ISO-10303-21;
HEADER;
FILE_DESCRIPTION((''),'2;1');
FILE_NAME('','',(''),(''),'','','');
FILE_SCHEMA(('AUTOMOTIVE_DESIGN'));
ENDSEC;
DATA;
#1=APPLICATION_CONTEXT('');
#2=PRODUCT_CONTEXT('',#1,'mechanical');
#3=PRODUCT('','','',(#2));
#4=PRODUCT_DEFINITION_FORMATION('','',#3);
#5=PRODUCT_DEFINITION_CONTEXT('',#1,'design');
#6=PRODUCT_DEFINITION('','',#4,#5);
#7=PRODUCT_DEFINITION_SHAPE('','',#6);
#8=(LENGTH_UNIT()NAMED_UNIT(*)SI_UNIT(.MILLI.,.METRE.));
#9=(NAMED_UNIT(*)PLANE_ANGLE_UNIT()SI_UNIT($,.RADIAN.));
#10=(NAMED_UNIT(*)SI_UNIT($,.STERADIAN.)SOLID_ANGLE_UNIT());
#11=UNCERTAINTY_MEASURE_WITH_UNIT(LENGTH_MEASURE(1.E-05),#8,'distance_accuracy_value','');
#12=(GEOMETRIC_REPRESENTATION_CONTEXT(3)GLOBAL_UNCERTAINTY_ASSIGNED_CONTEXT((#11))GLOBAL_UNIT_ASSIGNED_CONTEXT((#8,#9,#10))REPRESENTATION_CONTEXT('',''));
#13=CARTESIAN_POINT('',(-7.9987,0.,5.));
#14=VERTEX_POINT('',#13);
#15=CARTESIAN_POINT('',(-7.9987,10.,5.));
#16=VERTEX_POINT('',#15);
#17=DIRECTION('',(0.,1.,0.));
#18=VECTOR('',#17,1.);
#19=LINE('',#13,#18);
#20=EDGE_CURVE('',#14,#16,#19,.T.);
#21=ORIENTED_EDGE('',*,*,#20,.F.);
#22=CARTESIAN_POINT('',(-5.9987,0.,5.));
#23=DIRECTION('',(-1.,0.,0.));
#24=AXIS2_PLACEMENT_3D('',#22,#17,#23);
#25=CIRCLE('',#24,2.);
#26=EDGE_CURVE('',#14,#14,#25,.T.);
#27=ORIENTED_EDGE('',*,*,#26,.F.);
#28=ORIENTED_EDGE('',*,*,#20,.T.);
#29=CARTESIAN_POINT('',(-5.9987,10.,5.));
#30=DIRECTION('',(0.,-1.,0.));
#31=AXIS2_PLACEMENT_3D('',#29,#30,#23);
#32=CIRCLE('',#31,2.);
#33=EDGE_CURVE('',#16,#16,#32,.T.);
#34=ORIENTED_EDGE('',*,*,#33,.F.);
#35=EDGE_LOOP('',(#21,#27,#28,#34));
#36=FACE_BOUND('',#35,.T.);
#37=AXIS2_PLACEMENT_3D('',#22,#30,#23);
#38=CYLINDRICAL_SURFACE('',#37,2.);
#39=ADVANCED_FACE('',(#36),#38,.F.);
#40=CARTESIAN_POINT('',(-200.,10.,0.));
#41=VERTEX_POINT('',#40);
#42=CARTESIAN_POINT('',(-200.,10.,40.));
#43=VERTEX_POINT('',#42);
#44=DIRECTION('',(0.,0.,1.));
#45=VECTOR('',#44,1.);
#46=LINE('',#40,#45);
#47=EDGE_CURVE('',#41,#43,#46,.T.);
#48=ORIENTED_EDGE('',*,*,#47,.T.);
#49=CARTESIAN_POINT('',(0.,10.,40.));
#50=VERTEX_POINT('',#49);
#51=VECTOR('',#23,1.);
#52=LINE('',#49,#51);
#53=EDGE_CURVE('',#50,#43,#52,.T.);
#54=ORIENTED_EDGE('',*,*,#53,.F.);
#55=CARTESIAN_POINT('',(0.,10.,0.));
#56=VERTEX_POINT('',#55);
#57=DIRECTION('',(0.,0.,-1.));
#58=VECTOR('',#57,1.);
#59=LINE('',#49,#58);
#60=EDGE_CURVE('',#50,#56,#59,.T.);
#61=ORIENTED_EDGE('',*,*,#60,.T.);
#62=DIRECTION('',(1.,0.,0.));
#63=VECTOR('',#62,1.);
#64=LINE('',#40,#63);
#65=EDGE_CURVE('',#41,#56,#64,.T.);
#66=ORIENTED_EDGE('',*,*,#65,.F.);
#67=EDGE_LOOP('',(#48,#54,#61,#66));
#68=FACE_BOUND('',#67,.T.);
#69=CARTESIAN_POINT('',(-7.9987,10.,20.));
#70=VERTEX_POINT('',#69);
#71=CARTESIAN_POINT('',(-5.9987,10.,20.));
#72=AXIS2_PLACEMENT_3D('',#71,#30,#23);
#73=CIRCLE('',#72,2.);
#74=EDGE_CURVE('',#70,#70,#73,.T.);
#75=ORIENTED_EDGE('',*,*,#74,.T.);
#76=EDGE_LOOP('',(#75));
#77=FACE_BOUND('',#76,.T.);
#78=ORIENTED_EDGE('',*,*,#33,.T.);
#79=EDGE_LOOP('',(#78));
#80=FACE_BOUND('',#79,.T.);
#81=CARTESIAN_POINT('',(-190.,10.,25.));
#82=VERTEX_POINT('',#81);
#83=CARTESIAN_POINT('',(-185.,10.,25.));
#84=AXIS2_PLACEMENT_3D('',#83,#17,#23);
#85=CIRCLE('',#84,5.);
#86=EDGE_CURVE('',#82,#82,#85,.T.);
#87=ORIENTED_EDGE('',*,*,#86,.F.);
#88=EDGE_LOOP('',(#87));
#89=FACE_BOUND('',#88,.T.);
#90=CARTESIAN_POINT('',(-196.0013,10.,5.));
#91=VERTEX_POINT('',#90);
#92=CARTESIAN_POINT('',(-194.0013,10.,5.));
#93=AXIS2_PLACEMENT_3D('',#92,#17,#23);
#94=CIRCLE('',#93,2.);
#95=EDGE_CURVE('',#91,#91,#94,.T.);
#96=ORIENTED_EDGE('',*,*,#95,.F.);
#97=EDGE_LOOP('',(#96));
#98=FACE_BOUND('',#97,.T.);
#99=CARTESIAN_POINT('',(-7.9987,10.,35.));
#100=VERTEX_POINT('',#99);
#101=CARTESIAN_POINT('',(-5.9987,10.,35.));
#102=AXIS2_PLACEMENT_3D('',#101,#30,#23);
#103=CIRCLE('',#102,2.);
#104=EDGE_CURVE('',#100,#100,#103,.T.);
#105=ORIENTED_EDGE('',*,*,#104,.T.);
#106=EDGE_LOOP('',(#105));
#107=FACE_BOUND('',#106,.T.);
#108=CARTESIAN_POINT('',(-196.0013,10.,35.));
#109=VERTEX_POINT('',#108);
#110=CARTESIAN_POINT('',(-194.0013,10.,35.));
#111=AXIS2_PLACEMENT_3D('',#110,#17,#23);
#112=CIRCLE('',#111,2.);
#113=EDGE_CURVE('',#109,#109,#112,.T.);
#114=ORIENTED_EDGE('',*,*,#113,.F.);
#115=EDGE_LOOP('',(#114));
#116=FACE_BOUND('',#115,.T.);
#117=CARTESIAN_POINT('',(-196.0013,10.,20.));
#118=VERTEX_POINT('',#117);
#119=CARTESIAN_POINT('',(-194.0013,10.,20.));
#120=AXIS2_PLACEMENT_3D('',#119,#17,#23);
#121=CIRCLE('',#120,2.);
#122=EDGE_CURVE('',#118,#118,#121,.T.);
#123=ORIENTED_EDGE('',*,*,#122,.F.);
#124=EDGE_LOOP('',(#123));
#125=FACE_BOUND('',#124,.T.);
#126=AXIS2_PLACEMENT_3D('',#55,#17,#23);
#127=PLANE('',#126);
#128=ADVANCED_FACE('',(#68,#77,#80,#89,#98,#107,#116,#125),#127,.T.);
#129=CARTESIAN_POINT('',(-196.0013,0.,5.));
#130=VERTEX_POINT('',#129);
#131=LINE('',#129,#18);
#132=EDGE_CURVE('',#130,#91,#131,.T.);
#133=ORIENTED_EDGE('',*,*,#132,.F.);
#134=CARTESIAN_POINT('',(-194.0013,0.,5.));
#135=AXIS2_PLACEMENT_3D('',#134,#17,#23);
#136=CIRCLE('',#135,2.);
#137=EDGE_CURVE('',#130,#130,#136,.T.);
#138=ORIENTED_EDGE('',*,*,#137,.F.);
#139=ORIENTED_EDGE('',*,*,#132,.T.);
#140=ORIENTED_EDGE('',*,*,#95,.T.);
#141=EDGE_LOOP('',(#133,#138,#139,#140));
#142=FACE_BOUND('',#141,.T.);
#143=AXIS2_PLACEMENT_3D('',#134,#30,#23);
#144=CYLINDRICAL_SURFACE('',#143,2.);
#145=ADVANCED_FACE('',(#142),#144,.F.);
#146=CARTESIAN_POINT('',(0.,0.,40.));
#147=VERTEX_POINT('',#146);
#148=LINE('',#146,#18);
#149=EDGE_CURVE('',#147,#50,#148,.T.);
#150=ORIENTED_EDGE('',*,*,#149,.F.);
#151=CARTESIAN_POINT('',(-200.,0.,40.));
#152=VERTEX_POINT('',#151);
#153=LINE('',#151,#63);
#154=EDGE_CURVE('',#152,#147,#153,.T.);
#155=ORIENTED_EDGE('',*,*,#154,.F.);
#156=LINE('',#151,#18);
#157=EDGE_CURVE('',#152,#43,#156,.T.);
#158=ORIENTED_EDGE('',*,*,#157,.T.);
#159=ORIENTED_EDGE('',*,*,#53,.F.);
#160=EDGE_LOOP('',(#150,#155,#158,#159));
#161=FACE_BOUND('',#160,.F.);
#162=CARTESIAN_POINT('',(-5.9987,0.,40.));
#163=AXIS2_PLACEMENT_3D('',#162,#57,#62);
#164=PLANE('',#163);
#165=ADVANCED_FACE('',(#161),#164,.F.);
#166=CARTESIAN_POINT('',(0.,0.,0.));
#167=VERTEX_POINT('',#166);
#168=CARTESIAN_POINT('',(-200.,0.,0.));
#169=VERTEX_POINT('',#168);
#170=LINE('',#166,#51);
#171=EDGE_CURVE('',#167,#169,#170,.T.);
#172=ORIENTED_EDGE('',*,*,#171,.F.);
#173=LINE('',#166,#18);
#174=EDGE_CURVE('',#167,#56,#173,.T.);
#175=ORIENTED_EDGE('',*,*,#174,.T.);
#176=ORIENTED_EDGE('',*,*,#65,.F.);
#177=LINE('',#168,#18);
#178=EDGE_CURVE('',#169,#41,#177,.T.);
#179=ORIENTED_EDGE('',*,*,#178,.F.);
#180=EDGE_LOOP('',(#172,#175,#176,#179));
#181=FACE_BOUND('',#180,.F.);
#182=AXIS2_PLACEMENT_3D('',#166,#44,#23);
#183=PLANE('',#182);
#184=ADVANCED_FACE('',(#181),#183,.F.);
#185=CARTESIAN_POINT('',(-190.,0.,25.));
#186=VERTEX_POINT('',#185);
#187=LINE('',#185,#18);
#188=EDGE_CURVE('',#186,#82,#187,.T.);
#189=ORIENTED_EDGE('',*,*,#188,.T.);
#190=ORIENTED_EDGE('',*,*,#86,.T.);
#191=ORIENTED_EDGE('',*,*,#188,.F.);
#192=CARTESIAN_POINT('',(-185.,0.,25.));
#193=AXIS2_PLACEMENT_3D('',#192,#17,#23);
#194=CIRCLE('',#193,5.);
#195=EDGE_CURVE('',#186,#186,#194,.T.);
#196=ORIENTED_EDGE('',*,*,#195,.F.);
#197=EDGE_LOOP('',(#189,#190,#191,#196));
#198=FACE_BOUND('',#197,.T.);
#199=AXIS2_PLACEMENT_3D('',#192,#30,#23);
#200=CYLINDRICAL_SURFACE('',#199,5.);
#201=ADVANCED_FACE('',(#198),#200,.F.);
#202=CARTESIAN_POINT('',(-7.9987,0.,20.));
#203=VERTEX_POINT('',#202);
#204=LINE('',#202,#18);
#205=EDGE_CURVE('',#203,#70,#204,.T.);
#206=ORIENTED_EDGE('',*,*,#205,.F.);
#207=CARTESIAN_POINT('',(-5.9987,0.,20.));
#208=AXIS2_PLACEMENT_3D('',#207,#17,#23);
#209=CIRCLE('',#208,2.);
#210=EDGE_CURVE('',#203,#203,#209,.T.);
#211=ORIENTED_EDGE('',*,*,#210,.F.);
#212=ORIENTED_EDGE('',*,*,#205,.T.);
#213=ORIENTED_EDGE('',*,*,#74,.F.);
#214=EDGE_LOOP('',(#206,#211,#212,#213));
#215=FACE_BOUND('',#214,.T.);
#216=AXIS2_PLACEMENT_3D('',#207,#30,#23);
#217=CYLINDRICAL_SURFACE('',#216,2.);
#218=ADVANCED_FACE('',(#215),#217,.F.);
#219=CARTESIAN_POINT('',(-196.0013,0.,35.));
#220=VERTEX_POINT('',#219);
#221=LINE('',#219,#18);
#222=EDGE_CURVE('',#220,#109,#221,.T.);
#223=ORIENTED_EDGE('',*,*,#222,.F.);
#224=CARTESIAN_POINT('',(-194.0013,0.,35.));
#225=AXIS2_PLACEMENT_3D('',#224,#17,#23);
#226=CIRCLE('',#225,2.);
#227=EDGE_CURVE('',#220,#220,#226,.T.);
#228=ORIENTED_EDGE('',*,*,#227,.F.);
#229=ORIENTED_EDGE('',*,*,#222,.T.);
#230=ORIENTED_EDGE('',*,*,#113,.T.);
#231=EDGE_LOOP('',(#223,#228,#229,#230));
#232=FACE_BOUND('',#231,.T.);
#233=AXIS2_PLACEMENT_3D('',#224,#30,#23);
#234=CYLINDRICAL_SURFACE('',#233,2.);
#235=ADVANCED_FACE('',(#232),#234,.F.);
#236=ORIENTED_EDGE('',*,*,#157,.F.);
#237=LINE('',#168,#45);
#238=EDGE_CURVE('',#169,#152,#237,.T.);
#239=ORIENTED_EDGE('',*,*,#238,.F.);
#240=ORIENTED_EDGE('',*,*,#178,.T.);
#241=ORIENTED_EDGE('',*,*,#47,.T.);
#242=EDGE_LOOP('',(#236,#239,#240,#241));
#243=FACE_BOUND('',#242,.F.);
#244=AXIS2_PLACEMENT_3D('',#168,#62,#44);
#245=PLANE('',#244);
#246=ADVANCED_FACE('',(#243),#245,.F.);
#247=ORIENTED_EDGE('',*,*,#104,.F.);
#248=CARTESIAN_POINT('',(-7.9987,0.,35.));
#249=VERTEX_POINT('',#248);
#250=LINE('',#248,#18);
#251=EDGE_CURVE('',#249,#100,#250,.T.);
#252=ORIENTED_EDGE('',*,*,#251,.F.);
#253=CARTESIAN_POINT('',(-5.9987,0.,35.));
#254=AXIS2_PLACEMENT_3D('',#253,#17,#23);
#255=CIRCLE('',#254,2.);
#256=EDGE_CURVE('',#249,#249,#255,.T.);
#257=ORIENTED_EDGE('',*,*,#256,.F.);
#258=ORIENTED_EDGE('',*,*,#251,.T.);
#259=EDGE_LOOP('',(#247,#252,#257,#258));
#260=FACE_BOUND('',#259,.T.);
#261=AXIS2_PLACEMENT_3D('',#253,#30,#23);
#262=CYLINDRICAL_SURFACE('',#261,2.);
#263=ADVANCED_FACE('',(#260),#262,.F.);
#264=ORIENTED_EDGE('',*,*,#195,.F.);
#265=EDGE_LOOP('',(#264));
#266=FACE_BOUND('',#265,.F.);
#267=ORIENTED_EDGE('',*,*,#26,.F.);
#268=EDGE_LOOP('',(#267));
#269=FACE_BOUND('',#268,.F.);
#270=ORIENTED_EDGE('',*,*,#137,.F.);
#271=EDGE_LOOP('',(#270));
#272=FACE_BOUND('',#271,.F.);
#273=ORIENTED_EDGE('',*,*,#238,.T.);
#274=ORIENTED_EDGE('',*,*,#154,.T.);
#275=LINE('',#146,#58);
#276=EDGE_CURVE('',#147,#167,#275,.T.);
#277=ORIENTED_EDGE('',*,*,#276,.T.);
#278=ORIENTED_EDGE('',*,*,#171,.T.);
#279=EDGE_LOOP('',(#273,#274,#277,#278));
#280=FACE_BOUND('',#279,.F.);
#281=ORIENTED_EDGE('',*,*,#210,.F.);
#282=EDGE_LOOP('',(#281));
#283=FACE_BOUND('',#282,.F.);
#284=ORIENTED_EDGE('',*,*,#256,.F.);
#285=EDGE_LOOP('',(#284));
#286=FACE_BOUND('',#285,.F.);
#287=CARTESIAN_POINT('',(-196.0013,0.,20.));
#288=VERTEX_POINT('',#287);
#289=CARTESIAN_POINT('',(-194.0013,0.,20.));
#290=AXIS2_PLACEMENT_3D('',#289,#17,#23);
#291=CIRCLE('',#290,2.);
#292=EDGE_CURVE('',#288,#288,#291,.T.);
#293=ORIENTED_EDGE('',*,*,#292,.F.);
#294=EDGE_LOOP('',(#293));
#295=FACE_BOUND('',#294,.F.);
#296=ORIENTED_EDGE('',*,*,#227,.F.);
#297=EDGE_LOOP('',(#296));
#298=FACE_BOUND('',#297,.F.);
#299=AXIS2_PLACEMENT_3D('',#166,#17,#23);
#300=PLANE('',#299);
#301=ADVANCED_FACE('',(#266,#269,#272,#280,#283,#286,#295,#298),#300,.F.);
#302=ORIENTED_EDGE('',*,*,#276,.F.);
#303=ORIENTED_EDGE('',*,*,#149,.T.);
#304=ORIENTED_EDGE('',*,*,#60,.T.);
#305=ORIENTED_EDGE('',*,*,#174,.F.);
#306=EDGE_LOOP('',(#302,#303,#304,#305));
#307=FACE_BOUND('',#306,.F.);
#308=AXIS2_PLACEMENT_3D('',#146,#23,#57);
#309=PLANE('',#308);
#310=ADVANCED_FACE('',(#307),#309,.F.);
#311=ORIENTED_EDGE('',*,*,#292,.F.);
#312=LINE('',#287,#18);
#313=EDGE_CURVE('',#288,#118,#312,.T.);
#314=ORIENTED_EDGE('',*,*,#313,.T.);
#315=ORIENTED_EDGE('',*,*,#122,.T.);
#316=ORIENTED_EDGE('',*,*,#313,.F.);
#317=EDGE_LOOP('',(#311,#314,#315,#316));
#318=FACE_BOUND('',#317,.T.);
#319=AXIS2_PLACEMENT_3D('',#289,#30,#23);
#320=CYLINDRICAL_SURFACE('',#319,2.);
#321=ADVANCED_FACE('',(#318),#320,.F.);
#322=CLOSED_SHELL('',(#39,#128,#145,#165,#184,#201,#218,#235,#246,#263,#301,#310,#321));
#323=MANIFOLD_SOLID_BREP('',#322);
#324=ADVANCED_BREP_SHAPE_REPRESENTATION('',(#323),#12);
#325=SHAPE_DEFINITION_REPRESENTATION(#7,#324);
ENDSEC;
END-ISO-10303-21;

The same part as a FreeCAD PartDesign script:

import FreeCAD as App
import Part
import Sketcher
from FreeCAD import Vector

doc = App.newDocument("Part")
body = doc.addObject("PartDesign::Body", "Body")

sketch1 = body.newObject("Sketcher::SketchObject", "Sketch")
sketch1.AttachmentSupport = (doc.getObject("XZ_Plane"), [""])
sketch1.MapMode = "FlatFace"
sketch1.addGeometry([
    Part.LineSegment(Vector(0, 40, 0), Vector(0, 0, 0)),
    Part.LineSegment(Vector(0, 0, 0), Vector(-200, 0, 0)),
    Part.LineSegment(Vector(-200, 0, 0), Vector(-200, 40, 0)),
    Part.LineSegment(Vector(-200, 40, 0), Vector(0, 40, 0)),
    Part.Circle(Vector(-6, 35, 0), Vector(0, 0, 1), 2),
    Part.Circle(Vector(-6, 20, 0), Vector(0, 0, 1), 2),
    Part.Circle(Vector(-6, 5, 0), Vector(0, 0, 1), 2),
    Part.Circle(Vector(-194, 35, 0), Vector(0, 0, 1), 2),
    Part.Circle(Vector(-194, 5, 0), Vector(0, 0, 1), 2),
    Part.Circle(Vector(-194, 20, 0), Vector(0, 0, 1), 2),
    Part.Circle(Vector(-185, 25, 0), Vector(0, 0, 1), 5),
], False)
sketch1.addConstraint([
    Sketcher.Constraint("Coincident", 0, 2, 1, 1),
    Sketcher.Constraint("Coincident", 1, 2, 2, 1),
    Sketcher.Constraint("Coincident", 2, 2, 3, 1),
    Sketcher.Constraint("Coincident", 3, 2, 0, 1),
    Sketcher.Constraint("Vertical", 0),
    Sketcher.Constraint("Horizontal", 1),
    Sketcher.Constraint("Vertical", 2),
    Sketcher.Constraint("Horizontal", 3),
    Sketcher.Constraint("Coincident", 0, 2, -1, 1),
    Sketcher.Constraint("Equal", 4, 5),
    Sketcher.Constraint("Equal", 5, 6),
    Sketcher.Constraint("Equal", 6, 7),
    Sketcher.Constraint("Equal", 7, 8),
    Sketcher.Constraint("Equal", 8, 9),
    Sketcher.Constraint("Horizontal", 4, 3, 7, 3),
    Sketcher.Constraint("Horizontal", 6, 3, 8, 3),
    Sketcher.Constraint("Horizontal", 5, 3, 9, 3),
    Sketcher.Constraint("Vertical", 4, 3, 5, 3),
    Sketcher.Constraint("Vertical", 5, 3, 6, 3),
    Sketcher.Constraint("Vertical", 7, 3, 8, 3),
    Sketcher.Constraint("Vertical", 8, 3, 9, 3),
    Sketcher.Constraint("Diameter", 4, 4.0),
    Sketcher.Constraint("Diameter", 10, 10.0),
    Sketcher.Constraint("DistanceX", 1, 2, 1, 1, 200.0),
    Sketcher.Constraint("DistanceY", 0, 2, 0, 1, 40.0),
    Sketcher.Constraint("DistanceY", -1, 1, 5, 3, 20.0),
    Sketcher.Constraint("DistanceY", -1, 1, 6, 3, 5.0),
    Sketcher.Constraint("DistanceY", 5, 3, 4, 3, 15.0),
    Sketcher.Constraint("DistanceY", 9, 3, 10, 3, 5.0),
    Sketcher.Constraint("DistanceX", 1, 2, 10, 3, 15.0),
    Sketcher.Constraint("DistanceX", 4, 3, -1, 1, 5.9987),
    Sketcher.Constraint("DistanceX", 7, 3, -1, 1, 194.0013),
])
pad1 = body.newObject("PartDesign::Pad", "Pad")
pad1.Profile = sketch1
pad1.Length = 10
pad1.Reversed = True

doc.recompute()
